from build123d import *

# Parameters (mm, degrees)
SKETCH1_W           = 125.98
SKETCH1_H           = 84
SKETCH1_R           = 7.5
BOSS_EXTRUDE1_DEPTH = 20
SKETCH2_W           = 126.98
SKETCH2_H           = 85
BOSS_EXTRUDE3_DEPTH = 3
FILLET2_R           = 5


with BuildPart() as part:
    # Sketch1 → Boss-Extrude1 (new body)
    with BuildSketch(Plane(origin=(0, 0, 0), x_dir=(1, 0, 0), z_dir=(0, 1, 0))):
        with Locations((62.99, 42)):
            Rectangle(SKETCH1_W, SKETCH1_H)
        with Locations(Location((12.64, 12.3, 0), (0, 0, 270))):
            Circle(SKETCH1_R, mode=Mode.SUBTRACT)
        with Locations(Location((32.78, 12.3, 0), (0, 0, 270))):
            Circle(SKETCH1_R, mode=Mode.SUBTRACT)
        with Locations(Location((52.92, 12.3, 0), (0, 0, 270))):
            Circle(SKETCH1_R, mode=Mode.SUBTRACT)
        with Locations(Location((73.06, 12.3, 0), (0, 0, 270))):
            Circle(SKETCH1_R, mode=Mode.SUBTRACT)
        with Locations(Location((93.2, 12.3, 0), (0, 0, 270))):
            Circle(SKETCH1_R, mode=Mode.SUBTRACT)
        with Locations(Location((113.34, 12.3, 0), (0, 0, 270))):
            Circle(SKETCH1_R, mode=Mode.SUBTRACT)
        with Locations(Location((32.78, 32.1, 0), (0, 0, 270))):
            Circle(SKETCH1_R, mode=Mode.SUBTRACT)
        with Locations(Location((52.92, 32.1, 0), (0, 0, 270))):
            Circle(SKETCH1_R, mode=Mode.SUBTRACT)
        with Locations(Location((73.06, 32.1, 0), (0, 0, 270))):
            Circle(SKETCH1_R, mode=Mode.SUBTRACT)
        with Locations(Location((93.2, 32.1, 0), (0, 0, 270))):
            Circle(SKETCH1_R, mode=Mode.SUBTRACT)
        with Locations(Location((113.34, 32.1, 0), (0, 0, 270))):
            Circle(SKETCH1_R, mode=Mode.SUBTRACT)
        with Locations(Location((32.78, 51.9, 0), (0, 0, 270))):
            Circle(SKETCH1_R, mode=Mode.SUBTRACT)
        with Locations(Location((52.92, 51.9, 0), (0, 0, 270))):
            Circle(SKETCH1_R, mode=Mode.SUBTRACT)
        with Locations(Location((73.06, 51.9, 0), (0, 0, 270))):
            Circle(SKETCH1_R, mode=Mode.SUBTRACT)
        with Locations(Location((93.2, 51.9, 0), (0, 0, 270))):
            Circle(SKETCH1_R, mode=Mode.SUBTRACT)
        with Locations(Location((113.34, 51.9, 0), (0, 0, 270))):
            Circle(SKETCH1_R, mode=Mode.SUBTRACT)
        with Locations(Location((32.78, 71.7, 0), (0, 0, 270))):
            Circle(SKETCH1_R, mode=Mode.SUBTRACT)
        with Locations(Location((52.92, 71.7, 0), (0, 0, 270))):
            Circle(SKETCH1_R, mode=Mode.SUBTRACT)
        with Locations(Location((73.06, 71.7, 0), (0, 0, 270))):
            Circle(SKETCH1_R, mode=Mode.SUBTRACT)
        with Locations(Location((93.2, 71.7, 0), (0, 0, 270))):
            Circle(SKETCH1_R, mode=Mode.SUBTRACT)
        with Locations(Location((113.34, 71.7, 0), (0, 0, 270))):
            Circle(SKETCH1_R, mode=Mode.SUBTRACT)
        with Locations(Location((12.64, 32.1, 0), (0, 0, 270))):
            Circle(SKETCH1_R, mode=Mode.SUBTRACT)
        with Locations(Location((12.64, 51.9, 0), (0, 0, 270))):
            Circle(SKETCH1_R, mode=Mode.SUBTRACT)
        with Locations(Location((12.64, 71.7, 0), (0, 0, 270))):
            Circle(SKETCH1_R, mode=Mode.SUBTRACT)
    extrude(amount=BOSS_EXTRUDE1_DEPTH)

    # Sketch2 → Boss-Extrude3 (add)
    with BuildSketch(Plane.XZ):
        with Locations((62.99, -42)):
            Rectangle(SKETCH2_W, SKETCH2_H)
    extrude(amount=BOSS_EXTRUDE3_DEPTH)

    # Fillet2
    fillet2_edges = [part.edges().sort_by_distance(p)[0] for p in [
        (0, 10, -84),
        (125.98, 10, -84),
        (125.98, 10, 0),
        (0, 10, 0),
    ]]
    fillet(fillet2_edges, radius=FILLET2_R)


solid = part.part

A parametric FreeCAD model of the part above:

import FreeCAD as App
import Part
import Sketcher

V = App.Vector


def edges_at(feature, points):
    """Names of the edges that pass closest to the given points."""
    edges = feature.Shape.Edges
    near = lambda p: min(range(len(edges)), key=lambda i: edges[i].distToShape(Part.Vertex(*p))[0])
    return sorted({f"Edge{near(p) + 1}" for p in points})


def add_polygon(sketch, points):
    """Adds a closed chain of lines whose ends are joined by coincident constraints."""
    first, n = sketch.GeometryCount, len(points)
    for a, b in zip(points, points[1:] + points[:1]):
        sketch.addGeometry(Part.LineSegment(App.Vector(*a, 0), App.Vector(*b, 0)), False)
    for i in range(n):
        sketch.addConstraint(Sketcher.Constraint("Coincident", first + i, 2, first + (i + 1) % n, 1))

doc = App.newDocument("Part")
body = doc.addObject("PartDesign::Body", "Body")

# Sketch on XZ plane
sketch1 = body.newObject("Sketcher::SketchObject", "Sketch")
sketch1.AttachmentSupport = (doc.getObject("XZ_Plane"), [""])
sketch1.MapMode = "FlatFace"
add_polygon(sketch1, [(0, -84), (0, 0), (125.98, 0), (125.98, -84)])  # lines 0-3
sketch1.addGeometry(Part.Circle(V(12.64, -12.3, 0), V(0, 0, 1), 7.5), False)  # 4
sketch1.addGeometry(Part.Circle(V(32.78, -12.3, 0), V(0, 0, 1), 7.5), False)  # 5
sketch1.addGeometry(Part.Circle(V(52.92, -12.3, 0), V(0, 0, 1), 7.5), False)  # 6
sketch1.addGeometry(Part.Circle(V(12.64, -32.1, 0), V(0, 0, 1), 7.5), False)  # 7
sketch1.addGeometry(Part.Circle(V(32.78, -32.1, 0), V(0, 0, 1), 7.5), False)  # 8
sketch1.addGeometry(Part.Circle(V(52.92, -32.1, 0), V(0, 0, 1), 7.5), False)  # 9
sketch1.addGeometry(Part.Circle(V(73.06, -12.3, 0), V(0, 0, 1), 7.5), False)  # 10
sketch1.addGeometry(Part.Circle(V(93.2, -12.3, 0), V(0, 0, 1), 7.5), False)  # 11
sketch1.addGeometry(Part.Circle(V(113.34, -12.3, 0), V(0, 0, 1), 7.5), False)  # 12
sketch1.addGeometry(Part.Circle(V(73.06, -32.1, 0), V(0, 0, 1), 7.5), False)  # 13
sketch1.addGeometry(Part.Circle(V(93.2, -32.1, 0), V(0, 0, 1), 7.5), False)  # 14
sketch1.addGeometry(Part.Circle(V(113.34, -32.1, 0), V(0, 0, 1), 7.5), False)  # 15
sketch1.addGeometry(Part.Circle(V(12.64, -51.9, 0), V(0, 0, 1), 7.5), False)  # 16
sketch1.addGeometry(Part.Circle(V(32.78, -51.9, 0), V(0, 0, 1), 7.5), False)  # 17
sketch1.addGeometry(Part.Circle(V(52.92, -51.9, 0), V(0, 0, 1), 7.5), False)  # 18
sketch1.addGeometry(Part.Circle(V(12.64, -71.7, 0), V(0, 0, 1), 7.5), False)  # 19
sketch1.addGeometry(Part.Circle(V(32.78, -71.7, 0), V(0, 0, 1), 7.5), False)  # 20
sketch1.addGeometry(Part.Circle(V(52.92, -71.7, 0), V(0, 0, 1), 7.5), False)  # 21
sketch1.addGeometry(Part.Circle(V(73.06, -51.9, 0), V(0, 0, 1), 7.5), False)  # 22
sketch1.addGeometry(Part.Circle(V(93.2, -51.9, 0), V(0, 0, 1), 7.5), False)  # 23
sketch1.addGeometry(Part.Circle(V(113.34, -51.9, 0), V(0, 0, 1), 7.5), False)  # 24
sketch1.addGeometry(Part.Circle(V(73.06, -71.7, 0), V(0, 0, 1), 7.5), False)  # 25
sketch1.addGeometry(Part.Circle(V(93.2, -71.7, 0), V(0, 0, 1), 7.5), False)  # 26
sketch1.addGeometry(Part.Circle(V(113.34, -71.7, 0), V(0, 0, 1), 7.5), False)  # 27
sketch1.addConstraint(Sketcher.Constraint("Vertical", 0))
sketch1.addConstraint(Sketcher.Constraint("Horizontal", 1))
sketch1.addConstraint(Sketcher.Constraint("Vertical", 2))
sketch1.addConstraint(Sketcher.Constraint("Horizontal", 3))
sketch1.addConstraint(Sketcher.Constraint("Coincident", 0, 2, -1, 1))
sketch1.addConstraint(Sketcher.Constraint("Equal", 4, 5))
sketch1.addConstraint(Sketcher.Constraint("Equal", 5, 6))
sketch1.addConstraint(Sketcher.Constraint("Equal", 6, 7))
sketch1.addConstraint(Sketcher.Constraint("Equal", 7, 8))
sketch1.addConstraint(Sketcher.Constraint("Equal", 8, 9))
sketch1.addConstraint(Sketcher.Constraint("Equal", 9, 10))
sketch1.addConstraint(Sketcher.Constraint("Equal", 10, 11))
sketch1.addConstraint(Sketcher.Constraint("Equal", 11, 12))
sketch1.addConstraint(Sketcher.Constraint("Equal", 12, 13))
sketch1.addConstraint(Sketcher.Constraint("Equal", 13, 14))
sketch1.addConstraint(Sketcher.Constraint("Equal", 14, 15))
sketch1.addConstraint(Sketcher.Constraint("Equal", 15, 16))
sketch1.addConstraint(Sketcher.Constraint("Equal", 16, 17))
sketch1.addConstraint(Sketcher.Constraint("Equal", 17, 18))
sketch1.addConstraint(Sketcher.Constraint("Equal", 18, 19))
sketch1.addConstraint(Sketcher.Constraint("Equal", 19, 20))
sketch1.addConstraint(Sketcher.Constraint("Equal", 20, 21))
sketch1.addConstraint(Sketcher.Constraint("Equal", 21, 22))
sketch1.addConstraint(Sketcher.Constraint("Equal", 22, 23))
sketch1.addConstraint(Sketcher.Constraint("Equal", 23, 24))
sketch1.addConstraint(Sketcher.Constraint("Equal", 24, 25))
sketch1.addConstraint(Sketcher.Constraint("Equal", 25, 26))
sketch1.addConstraint(Sketcher.Constraint("Equal", 26, 27))
sketch1.addConstraint(Sketcher.Constraint("Horizontal", 4, 3, 5, 3))
sketch1.addConstraint(Sketcher.Constraint("Horizontal", 5, 3, 6, 3))
sketch1.addConstraint(Sketcher.Constraint("Horizontal", 7, 3, 8, 3))
sketch1.addConstraint(Sketcher.Constraint("Horizontal", 8, 3, 9, 3))
sketch1.addConstraint(Sketcher.Constraint("Horizontal", 6, 3, 10, 3))
sketch1.addConstraint(Sketcher.Constraint("Horizontal", 10, 3, 11, 3))
sketch1.addConstraint(Sketcher.Constraint("Horizontal", 11, 3, 12, 3))
sketch1.addConstraint(Sketcher.Constraint("Horizontal", 9, 3, 13, 3))
sketch1.addConstraint(Sketcher.Constraint("Horizontal", 13, 3, 14, 3))
sketch1.addConstraint(Sketcher.Constraint("Horizontal", 14, 3, 15, 3))
sketch1.addConstraint(Sketcher.Constraint("Horizontal", 16, 3, 17, 3))
sketch1.addConstraint(Sketcher.Constraint("Horizontal", 17, 3, 18, 3))
sketch1.addConstraint(Sketcher.Constraint("Horizontal", 19, 3, 20, 3))
sketch1.addConstraint(Sketcher.Constraint("Horizontal", 20, 3, 21, 3))
sketch1.addConstraint(Sketcher.Constraint("Horizontal", 18, 3, 22, 3))
sketch1.addConstraint(Sketcher.Constraint("Horizontal", 22, 3, 23, 3))
sketch1.addConstraint(Sketcher.Constraint("Horizontal", 23, 3, 24, 3))
sketch1.addConstraint(Sketcher.Constraint("Horizontal", 21, 3, 25, 3))
sketch1.addConstraint(Sketcher.Constraint("Horizontal", 25, 3, 26, 3))
sketch1.addConstraint(Sketcher.Constraint("Horizontal", 26, 3, 27, 3))
sketch1.addConstraint(Sketcher.Constraint("Vertical", 4, 3, 7, 3))
sketch1.addConstraint(Sketcher.Constraint("Vertical", 5, 3, 8, 3))
sketch1.addConstraint(Sketcher.Constraint("Vertical", 6, 3, 9, 3))
sketch1.addConstraint(Sketcher.Constraint("Vertical", 10, 3, 13, 3))
sketch1.addConstraint(Sketcher.Constraint("Vertical", 11, 3, 14, 3))
sketch1.addConstraint(Sketcher.Constraint("Vertical", 12, 3, 15, 3))
sketch1.addConstraint(Sketcher.Constraint("Vertical", 7, 3, 16, 3))
sketch1.addConstraint(Sketcher.Constraint("Vertical", 8, 3, 17, 3))
sketch1.addConstraint(Sketcher.Constraint("Vertical", 9, 3, 18, 3))
sketch1.addConstraint(Sketcher.Constraint("Vertical", 16, 3, 19, 3))
sketch1.addConstraint(Sketcher.Constraint("Vertical", 17, 3, 20, 3))
sketch1.addConstraint(Sketcher.Constraint("Vertical", 18, 3, 21, 3))
sketch1.addConstraint(Sketcher.Constraint("Vertical", 13, 3, 22, 3))
sketch1.addConstraint(Sketcher.Constraint("Vertical", 14, 3, 23, 3))
sketch1.addConstraint(Sketcher.Constraint("Vertical", 15, 3, 24, 3))
sketch1.addConstraint(Sketcher.Constraint("Vertical", 22, 3, 25, 3))
sketch1.addConstraint(Sketcher.Constraint("Vertical", 23, 3, 26, 3))
sketch1.addConstraint(Sketcher.Constraint("Vertical", 24, 3, 27, 3))
sketch1.addConstraint(Sketcher.Constraint("Diameter", 4, 15.0))
sketch1.addConstraint(Sketcher.Constraint("DistanceY", 0, 1, 0, 2, 84.0))
sketch1.addConstraint(Sketcher.Constraint("DistanceX", 1, 1, 1, 2, 125.98))
sketch1.addConstraint(Sketcher.Constraint("DistanceY", 4, 3, -1, 1, 12.3))
sketch1.addConstraint(Sketcher.Constraint("DistanceY", 7, 3, -1, 1, 32.1))
sketch1.addConstraint(Sketcher.Constraint("DistanceX", -1, 1, 11, 3, 93.2))
sketch1.addConstraint(Sketcher.Constraint("DistanceY", 16, 3, -1, 1, 51.9))
sketch1.addConstraint(Sketcher.Constraint("DistanceY", 19, 3, -1, 1, 71.7))
sketch1.addConstraint(Sketcher.Constraint("DistanceX", -1, 1, 4, 3, 12.64))
sketch1.addConstraint(Sketcher.Constraint("DistanceX", -1, 1, 5, 3, 32.78))
sketch1.addConstraint(Sketcher.Constraint("DistanceX", -1, 1, 6, 3, 52.92))
sketch1.addConstraint(Sketcher.Constraint("DistanceX", -1, 1, 10, 3, 73.06))
sketch1.addConstraint(Sketcher.Constraint("DistanceX", -1, 1, 12, 3, 113.34))
pad1 = body.newObject("PartDesign::Pad", "Pad")
pad1.Profile = sketch1
pad1.Length = 20
pad1.Reversed = True

# Sketch on XZ plane
sketch2 = body.newObject("Sketcher::SketchObject", "Sketch001")
sketch2.AttachmentSupport = (doc.getObject("XZ_Plane"), [""])
sketch2.MapMode = "FlatFace"
add_polygon(sketch2, [(-0.5, 0.5), (-0.5, -84.5), (126.48, -84.5), (126.48, 0.5)])  # lines 0-3
sketch2.addConstraint(Sketcher.Constraint("Vertical", 0))
sketch2.addConstraint(Sketcher.Constraint("Horizontal", 1))
sketch2.addConstraint(Sketcher.Constraint("Vertical", 2))
sketch2.addConstraint(Sketcher.Constraint("Horizontal", 3))
sketch2.addConstraint(Sketcher.Constraint("DistanceY", 0, 2, 0, 1, 85.0))
sketch2.addConstraint(Sketcher.Constraint("DistanceX", 1, 1, 1, 2, 126.98))
sketch2.addConstraint(Sketcher.Constraint("DistanceX", 0, 2, -1, 1, 0.5))
sketch2.addConstraint(Sketcher.Constraint("DistanceY", 0, 2, -1, 1, 84.5))
pad2 = body.newObject("PartDesign::Pad", "Pad001")
pad2.Profile = sketch2
pad2.Length = 3
doc.recompute()

fillet = body.newObject("PartDesign::Fillet", "Fillet")
fillet.Base = (pad2, edges_at(pad2, [
    (0, 10, -84),
    (125.98, 10, -84),
    (125.98, 10, 0),
    (0, 10, 0),
]))
fillet.Radius = 5

doc.recompute()
